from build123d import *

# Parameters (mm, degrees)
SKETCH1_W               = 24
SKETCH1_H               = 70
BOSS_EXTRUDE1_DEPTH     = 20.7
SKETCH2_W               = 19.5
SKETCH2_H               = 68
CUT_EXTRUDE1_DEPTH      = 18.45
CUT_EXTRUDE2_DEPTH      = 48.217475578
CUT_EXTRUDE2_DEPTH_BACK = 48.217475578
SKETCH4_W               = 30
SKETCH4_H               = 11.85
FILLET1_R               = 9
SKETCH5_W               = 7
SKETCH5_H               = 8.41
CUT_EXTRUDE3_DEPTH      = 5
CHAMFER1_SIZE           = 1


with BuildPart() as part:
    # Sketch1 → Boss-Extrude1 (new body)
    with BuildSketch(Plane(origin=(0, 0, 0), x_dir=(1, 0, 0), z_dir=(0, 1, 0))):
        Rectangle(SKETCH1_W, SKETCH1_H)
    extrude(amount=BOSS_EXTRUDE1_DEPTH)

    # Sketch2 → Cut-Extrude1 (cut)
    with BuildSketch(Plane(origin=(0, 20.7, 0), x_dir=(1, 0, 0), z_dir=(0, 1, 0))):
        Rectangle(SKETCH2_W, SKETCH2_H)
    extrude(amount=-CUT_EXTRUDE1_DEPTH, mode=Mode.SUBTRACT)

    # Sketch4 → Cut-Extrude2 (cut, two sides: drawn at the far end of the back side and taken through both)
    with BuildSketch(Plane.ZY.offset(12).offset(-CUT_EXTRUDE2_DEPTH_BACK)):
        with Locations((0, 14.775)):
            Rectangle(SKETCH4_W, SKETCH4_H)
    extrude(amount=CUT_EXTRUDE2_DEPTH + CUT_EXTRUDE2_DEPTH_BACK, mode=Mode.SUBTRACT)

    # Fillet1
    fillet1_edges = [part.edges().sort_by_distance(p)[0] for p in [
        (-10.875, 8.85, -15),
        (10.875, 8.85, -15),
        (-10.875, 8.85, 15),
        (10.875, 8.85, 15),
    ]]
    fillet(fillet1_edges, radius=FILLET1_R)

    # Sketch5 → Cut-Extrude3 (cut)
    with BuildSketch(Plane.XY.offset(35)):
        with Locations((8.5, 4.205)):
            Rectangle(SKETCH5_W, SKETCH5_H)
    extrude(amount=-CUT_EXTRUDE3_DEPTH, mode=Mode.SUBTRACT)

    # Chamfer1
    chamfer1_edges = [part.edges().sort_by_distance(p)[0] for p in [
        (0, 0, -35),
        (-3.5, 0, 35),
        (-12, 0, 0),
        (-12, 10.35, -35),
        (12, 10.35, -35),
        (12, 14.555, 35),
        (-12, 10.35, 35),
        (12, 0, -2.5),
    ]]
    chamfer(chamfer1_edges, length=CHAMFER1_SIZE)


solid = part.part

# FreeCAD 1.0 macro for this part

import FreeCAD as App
import Part
import Sketcher
from FreeCAD import Vector
Q = App.Units.Quantity


def edges_at(feature, points):
    """Names of the edges that pass closest to the given points."""
    edges = feature.Shape.Edges
    near = lambda p: min(range(len(edges)), key=lambda i: edges[i].distToShape(Part.Vertex(*p))[0])
    return sorted({f"Edge{near(p) + 1}" for p in points})


def add_polygon(sketch, points):
    """Adds a closed chain of lines whose ends are joined by coincident constraints."""
    first, n = sketch.GeometryCount, len(points)
    for a, b in zip(points, points[1:] + points[:1]):
        sketch.addGeometry(Part.LineSegment(App.Vector(*a, 0), App.Vector(*b, 0)), False)
    for i in range(n):
        sketch.addConstraint(Sketcher.Constraint("Coincident", first + i, 2, first + (i + 1) % n, 1))

doc = App.newDocument("Part")
body = doc.addObject("PartDesign::Body", "Body")

# Sketch on XZ plane
sketch1 = body.newObject("Sketcher::SketchObject", "Sketch")
sketch1.AttachmentSupport = (doc.getObject("XZ_Plane"), [""])
sketch1.MapMode = "FlatFace"
add_polygon(sketch1, [(-12, -35), (-12, 35), (12, 35), (12, -35)])  # lines 0-3
sketch1.addConstraint([
    Sketcher.Constraint("Vertical", 0),
    Sketcher.Constraint("Horizontal", 1),
    Sketcher.Constraint("Vertical", 2),
    Sketcher.Constraint("Horizontal", 3),
    Sketcher.Constraint("Symmetric", 0, 2, 2, 2, -1, 1),
    Sketcher.Constraint("DistanceX", 1, 1, 1, 2, Q("24 mm")),
    Sketcher.Constraint("DistanceY", 0, 1, 0, 2, Q("70 mm")),
])
pad1 = body.newObject("PartDesign::Pad", "Pad")
pad1.Profile = sketch1
pad1.Length = 20.7
pad1.Reversed = True

# Sketch on XZ plane
sketch2 = body.newObject("Sketcher::SketchObject", "Sketch001")
sketch2.AttachmentSupport = (doc.getObject("XZ_Plane"), [""])
sketch2.MapMode = "FlatFace"
sketch2.AttachmentOffset = App.Placement(Vector(0, 0, -20.7), App.Rotation())
add_polygon(sketch2, [(-10, -34), (-10, 34), (10, 34), (10, -34)])  # lines 0-3
sketch2.addConstraint([
    Sketcher.Constraint("Vertical", 0),
    Sketcher.Constraint("Horizontal", 1),
    Sketcher.Constraint("Vertical", 2),
    Sketcher.Constraint("Horizontal", 3),
    Sketcher.Constraint("Symmetric", 0, 2, 2, 2, -1, 1),
    Sketcher.Constraint("DistanceY", 0, 1, 0, 2, Q("68 mm")),
    Sketcher.Constraint("DistanceX", 1, 1, 1, 2, Q("19.5 mm")),
])
pocket1 = body.newObject("PartDesign::Pocket", "Pocket")
pocket1.Profile = sketch2
pocket1.Length = 18.45
pocket1.Reversed = True

# Sketch on YZ plane
sketch3 = body.newObject("Sketcher::SketchObject", "Sketch002")
sketch3.AttachmentSupport = (doc.getObject("YZ_Plane"), [""])
sketch3.MapMode = "FlatFace"
sketch3.AttachmentOffset = App.Placement(Vector(0, 0, -12), App.Rotation())
add_polygon(sketch3, [(21, -15), (9, -15), (9, 15), (21, 15)])  # lines 0-3
sketch3.addConstraint([
    Sketcher.Constraint("Horizontal", 0),
    Sketcher.Constraint("Vertical", 1),
    Sketcher.Constraint("Horizontal", 2),
    Sketcher.Constraint("Vertical", 3),
    Sketcher.Constraint("DistanceY", 1, 1, 1, 2, Q("30 mm")),
    Sketcher.Constraint("DistanceY", 0, 2, -1, 1, Q("15 mm")),
    Sketcher.Constraint("DistanceX", 0, 2, 0, 1, Q("11.85 mm")),
    Sketcher.Constraint("DistanceX", -1, 1, 2, 2, Q("20.7 mm")),
])
pocket2 = body.newObject("PartDesign::Pocket", "Pocket001")
pocket2.Profile = sketch3
pocket2.Type = "ThroughAll"
pocket2.Midplane = True
doc.recompute()

fillet = body.newObject("PartDesign::Fillet", "Fillet")
fillet.Base = (pocket2, edges_at(pocket2, [
    (-10.875, 8.85, -15),
    (10.875, 8.85, -15),
    (-10.875, 8.85, 15),
    (10.875, 8.85, 15),
]))
fillet.Radius = 9

# Sketch on XY plane
sketch4 = body.newObject("Sketcher::SketchObject", "Sketch003")
sketch4.AttachmentSupport = (doc.getObject("XY_Plane"), [""])
sketch4.MapMode = "FlatFace"
sketch4.AttachmentOffset = App.Placement(Vector(0, 0, 35), App.Rotation())
add_polygon(sketch4, [(5, 8), (5, 0), (12, 0), (12, 8)])  # lines 0-3
sketch4.addConstraint([
    Sketcher.Constraint("Vertical", 0),
    Sketcher.Constraint("Horizontal", 1),
    Sketcher.Constraint("Vertical", 2),
    Sketcher.Constraint("Horizontal", 3),
    Sketcher.Constraint("PointOnObject", 0, 2, -1),
    Sketcher.Constraint("DistanceX", 1, 1, 1, 2, Q("7 mm")),
    Sketcher.Constraint("DistanceX", -1, 1, 0, 2, Q("5 mm")),
    Sketcher.Constraint("DistanceY", 0, 2, 0, 1, Q("8.41 mm")),
])
pocket3 = body.newObject("PartDesign::Pocket", "Pocket002")
pocket3.Profile = sketch4
pocket3.Length = 5
doc.recompute()

chamfer = body.newObject("PartDesign::Chamfer", "Chamfer")
chamfer.Base = (pocket3, edges_at(pocket3, [
    (0, 0, -35),
    (-3.5, 0, 35),
    (-12, 0, 0),
    (-12, 10.35, -35),
    (12, 10.35, -35),
    (12, 14.555, 35),
    (-12, 10.35, 35),
    (12, 0, -2.5),
]))
chamfer.Size = 1

doc.recompute()
